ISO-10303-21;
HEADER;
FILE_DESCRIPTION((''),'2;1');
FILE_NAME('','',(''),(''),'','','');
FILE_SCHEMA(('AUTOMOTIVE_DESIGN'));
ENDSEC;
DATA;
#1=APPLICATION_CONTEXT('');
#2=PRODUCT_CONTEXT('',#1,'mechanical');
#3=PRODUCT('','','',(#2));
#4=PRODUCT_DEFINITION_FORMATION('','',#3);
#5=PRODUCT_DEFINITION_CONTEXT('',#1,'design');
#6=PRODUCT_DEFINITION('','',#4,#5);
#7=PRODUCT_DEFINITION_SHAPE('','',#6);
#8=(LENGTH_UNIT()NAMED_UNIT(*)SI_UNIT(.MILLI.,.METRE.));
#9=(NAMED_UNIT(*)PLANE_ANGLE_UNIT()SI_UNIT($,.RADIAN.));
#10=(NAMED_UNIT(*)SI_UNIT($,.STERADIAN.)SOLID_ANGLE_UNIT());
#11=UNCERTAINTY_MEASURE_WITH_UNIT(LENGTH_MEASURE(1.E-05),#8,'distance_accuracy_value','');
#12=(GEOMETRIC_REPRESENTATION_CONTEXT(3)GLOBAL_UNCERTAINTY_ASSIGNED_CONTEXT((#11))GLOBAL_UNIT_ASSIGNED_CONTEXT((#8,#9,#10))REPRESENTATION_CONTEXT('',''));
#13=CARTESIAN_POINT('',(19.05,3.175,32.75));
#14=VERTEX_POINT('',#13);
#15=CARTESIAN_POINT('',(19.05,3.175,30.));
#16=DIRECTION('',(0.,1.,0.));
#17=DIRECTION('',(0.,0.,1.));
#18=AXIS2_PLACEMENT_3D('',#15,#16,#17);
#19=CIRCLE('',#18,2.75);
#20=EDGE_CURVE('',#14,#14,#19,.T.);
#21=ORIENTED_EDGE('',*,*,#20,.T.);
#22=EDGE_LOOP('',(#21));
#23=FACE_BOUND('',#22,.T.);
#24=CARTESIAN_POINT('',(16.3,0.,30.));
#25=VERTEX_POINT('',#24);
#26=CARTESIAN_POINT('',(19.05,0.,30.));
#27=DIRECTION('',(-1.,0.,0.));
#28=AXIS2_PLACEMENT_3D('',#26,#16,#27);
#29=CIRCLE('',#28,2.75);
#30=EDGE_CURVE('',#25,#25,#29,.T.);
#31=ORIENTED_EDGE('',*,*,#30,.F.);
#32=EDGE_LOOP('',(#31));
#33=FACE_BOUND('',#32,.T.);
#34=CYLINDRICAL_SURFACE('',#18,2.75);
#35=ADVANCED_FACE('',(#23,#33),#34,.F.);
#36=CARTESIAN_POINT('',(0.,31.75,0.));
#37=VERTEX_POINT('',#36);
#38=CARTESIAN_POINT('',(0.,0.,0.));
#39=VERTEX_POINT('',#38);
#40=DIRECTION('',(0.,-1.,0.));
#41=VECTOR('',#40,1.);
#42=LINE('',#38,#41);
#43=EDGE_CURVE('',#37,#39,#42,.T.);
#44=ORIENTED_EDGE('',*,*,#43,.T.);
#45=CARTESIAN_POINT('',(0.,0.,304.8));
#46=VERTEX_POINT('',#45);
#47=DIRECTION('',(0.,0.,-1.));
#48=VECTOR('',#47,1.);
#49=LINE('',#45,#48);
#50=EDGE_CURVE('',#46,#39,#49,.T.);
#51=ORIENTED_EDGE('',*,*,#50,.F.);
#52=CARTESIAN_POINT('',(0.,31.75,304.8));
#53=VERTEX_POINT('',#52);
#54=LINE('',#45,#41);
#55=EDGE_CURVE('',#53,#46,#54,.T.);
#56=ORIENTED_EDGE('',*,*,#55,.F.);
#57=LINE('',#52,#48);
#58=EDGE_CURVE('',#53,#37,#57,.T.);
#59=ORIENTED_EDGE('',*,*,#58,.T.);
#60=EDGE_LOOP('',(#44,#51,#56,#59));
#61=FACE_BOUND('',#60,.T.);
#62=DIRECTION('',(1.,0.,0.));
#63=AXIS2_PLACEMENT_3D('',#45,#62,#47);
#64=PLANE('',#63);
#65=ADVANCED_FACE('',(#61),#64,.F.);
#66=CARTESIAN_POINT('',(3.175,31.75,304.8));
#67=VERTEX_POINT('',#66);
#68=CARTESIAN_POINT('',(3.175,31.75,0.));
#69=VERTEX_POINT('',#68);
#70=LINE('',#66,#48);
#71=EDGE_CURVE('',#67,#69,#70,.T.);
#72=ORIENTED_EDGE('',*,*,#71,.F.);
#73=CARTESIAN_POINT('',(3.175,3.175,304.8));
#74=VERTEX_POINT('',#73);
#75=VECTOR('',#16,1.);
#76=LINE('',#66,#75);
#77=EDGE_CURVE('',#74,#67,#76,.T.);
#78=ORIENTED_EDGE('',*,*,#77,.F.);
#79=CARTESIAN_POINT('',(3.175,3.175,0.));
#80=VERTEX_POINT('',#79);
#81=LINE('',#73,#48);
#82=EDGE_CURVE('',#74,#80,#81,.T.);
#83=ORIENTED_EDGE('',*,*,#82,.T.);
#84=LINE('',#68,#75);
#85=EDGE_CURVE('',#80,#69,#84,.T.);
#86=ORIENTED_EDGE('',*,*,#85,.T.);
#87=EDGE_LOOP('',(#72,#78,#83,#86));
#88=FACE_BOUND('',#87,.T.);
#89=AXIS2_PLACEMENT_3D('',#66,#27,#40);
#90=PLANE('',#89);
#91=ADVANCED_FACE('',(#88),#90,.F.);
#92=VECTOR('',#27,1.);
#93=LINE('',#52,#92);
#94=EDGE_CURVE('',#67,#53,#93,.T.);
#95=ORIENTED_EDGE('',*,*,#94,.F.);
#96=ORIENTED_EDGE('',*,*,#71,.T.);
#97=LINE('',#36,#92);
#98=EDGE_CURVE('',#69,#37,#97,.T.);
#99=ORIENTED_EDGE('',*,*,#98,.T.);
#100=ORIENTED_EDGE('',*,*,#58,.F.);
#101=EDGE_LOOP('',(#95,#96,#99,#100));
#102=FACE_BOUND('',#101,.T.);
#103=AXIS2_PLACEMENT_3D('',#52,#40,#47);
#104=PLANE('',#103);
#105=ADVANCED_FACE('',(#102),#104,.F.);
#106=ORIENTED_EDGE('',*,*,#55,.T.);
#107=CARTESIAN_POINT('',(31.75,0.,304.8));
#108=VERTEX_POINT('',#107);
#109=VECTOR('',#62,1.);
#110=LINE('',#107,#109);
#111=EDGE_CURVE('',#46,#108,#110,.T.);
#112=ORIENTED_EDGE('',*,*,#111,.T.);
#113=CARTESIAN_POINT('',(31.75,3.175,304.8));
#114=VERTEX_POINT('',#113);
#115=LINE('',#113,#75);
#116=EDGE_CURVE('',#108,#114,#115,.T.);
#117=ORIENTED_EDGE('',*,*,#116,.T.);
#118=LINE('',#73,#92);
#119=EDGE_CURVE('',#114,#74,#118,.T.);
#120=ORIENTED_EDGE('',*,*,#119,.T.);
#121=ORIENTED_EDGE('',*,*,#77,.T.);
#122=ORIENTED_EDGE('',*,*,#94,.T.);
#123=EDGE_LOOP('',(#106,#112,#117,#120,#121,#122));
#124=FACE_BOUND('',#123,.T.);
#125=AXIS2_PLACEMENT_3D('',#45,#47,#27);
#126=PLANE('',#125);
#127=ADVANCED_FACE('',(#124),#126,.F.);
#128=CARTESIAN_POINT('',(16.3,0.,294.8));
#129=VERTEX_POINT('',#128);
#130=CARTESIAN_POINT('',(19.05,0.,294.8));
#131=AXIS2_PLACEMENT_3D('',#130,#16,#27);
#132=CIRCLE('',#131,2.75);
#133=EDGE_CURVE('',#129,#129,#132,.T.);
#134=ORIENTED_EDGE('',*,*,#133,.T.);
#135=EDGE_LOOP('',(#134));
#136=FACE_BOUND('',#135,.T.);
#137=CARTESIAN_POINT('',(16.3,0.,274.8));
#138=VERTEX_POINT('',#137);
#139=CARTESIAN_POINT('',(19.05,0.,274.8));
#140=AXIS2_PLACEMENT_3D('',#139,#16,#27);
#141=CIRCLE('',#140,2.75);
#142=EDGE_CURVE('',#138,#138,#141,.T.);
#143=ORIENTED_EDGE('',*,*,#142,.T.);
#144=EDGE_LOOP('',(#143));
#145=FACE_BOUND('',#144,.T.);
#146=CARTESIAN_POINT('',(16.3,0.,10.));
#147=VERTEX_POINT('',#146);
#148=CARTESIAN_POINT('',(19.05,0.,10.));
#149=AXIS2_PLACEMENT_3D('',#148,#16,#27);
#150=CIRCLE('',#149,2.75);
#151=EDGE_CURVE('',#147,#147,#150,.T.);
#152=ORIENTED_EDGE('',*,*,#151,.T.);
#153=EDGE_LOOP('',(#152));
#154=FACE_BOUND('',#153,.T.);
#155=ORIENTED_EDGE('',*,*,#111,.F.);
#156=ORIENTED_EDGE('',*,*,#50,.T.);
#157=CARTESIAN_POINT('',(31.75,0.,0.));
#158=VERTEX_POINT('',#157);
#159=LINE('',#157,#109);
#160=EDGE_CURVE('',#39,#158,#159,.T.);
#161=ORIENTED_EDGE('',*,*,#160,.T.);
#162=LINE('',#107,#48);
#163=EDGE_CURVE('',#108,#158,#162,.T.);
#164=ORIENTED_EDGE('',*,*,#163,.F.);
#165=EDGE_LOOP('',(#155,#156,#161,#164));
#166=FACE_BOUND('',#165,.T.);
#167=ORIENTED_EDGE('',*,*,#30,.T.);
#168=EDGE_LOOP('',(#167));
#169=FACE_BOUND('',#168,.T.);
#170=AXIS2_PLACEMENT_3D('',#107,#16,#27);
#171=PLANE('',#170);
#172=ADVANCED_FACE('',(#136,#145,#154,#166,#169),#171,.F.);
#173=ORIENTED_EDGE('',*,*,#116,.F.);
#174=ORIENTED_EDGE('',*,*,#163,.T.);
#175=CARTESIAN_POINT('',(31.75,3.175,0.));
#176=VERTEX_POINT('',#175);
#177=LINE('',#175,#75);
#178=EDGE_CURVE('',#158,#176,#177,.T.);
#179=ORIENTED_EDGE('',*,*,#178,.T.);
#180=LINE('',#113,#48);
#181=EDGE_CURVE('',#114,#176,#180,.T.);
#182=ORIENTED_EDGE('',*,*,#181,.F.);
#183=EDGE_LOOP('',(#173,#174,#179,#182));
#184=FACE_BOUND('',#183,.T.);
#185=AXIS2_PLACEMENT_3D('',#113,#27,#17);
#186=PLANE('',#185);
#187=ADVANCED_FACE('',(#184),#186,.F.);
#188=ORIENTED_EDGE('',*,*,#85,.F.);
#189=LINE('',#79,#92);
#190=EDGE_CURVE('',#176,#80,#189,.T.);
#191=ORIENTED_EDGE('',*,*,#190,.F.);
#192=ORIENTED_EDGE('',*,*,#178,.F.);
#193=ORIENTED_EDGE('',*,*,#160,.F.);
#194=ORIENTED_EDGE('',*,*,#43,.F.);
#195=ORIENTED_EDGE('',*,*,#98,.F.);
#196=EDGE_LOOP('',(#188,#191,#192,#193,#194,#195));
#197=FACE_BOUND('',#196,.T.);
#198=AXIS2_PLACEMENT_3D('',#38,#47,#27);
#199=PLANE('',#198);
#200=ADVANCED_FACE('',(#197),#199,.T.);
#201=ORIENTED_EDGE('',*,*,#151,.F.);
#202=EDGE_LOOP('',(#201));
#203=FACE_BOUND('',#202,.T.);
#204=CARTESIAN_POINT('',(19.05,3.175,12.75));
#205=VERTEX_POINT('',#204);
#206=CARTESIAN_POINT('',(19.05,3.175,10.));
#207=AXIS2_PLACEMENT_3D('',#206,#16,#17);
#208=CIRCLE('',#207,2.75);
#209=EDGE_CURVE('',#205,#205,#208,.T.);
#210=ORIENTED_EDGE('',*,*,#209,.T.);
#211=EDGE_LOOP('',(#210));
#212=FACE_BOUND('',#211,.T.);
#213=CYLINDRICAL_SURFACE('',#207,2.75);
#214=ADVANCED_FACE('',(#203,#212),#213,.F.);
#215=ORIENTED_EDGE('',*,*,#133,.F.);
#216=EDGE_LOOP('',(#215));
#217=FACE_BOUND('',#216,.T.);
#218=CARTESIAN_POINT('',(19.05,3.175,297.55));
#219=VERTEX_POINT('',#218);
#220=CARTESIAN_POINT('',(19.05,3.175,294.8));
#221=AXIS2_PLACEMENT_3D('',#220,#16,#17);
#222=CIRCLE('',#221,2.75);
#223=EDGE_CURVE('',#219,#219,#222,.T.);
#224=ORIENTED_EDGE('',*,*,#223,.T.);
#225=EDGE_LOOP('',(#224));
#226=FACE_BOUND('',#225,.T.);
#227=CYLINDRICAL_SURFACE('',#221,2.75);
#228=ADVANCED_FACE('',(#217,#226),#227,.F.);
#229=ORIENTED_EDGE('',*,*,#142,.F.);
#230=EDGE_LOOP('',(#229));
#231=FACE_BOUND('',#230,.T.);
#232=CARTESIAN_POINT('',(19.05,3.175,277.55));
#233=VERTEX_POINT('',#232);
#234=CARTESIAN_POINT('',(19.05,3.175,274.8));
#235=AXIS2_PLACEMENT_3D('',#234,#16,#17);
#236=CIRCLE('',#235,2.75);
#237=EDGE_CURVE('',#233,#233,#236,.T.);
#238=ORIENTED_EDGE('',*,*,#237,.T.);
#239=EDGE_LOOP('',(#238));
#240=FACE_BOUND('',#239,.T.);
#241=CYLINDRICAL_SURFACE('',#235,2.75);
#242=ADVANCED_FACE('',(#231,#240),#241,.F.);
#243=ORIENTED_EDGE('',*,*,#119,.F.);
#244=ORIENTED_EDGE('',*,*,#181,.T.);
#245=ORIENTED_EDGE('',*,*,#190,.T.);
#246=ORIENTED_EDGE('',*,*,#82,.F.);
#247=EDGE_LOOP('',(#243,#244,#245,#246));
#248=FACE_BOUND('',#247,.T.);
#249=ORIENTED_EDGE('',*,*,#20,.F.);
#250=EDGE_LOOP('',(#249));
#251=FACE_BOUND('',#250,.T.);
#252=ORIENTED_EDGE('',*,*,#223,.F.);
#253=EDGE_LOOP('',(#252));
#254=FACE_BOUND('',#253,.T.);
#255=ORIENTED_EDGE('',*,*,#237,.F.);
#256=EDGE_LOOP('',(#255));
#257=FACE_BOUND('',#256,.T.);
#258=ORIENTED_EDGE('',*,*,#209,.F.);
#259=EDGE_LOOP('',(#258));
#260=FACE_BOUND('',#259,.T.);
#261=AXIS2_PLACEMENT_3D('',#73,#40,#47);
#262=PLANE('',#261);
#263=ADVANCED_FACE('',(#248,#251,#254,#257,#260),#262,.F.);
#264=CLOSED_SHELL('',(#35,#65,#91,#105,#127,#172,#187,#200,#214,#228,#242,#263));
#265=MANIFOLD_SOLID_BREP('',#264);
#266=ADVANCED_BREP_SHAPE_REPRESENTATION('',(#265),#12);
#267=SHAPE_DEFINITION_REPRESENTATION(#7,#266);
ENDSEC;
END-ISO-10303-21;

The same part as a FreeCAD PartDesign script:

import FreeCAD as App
import Part
import Sketcher
from FreeCAD import Vector
Q = App.Units.Quantity


def add_polygon(sketch, points):
    """Adds a closed chain of lines whose ends are joined by coincident constraints."""
    first, n = sketch.GeometryCount, len(points)
    for a, b in zip(points, points[1:] + points[:1]):
        sketch.addGeometry(Part.LineSegment(App.Vector(*a, 0), App.Vector(*b, 0)), False)
    for i in range(n):
        sketch.addConstraint(Sketcher.Constraint("Coincident", first + i, 2, first + (i + 1) % n, 1))

doc = App.newDocument("Part")
params = doc.addObject("Spreadsheet::Sheet", "Params")
for row, (alias, value) in enumerate([
    ("sketch1_width", "1.25 in"),
    ("sketch1_width2", "1.125 in"),
    ("pad1_length", "12 in"),
    ("hole_diameter", "5.5 mm"),
    ("hole_depth", "1 in"),
], start=1):
    params.set(f"A{row}", alias)
    params.set(f"B{row}", "=" + value)
    params.setAlias(f"B{row}", alias)

body = doc.addObject("PartDesign::Body", "Body")

# Sketch on XY plane
sketch1 = body.newObject("Sketcher::SketchObject", "Sketch")
sketch1.AttachmentSupport = (doc.getObject("XY_Plane"), [""])
sketch1.MapMode = "FlatFace"
add_polygon(sketch1, [(0, 31.75), (0, 0), (31.75, 0), (31.75, 3.175), (3.175, 3.175), (3.175, 31.75)])  # lines 0-5
sketch1.addConstraint(Sketcher.Constraint("Vertical", 0))
sketch1.addConstraint(Sketcher.Constraint("Horizontal", 1))
sketch1.addConstraint(Sketcher.Constraint("Vertical", 2))
sketch1.addConstraint(Sketcher.Constraint("Horizontal", 3))
sketch1.addConstraint(Sketcher.Constraint("Vertical", 4))
sketch1.addConstraint(Sketcher.Constraint("Horizontal", 5))
sketch1.addConstraint(Sketcher.Constraint("Coincident", 0, 2, -1, 1))
sketch1.addConstraint(Sketcher.Constraint("Equal", 1, 0))
sketch1.addConstraint(Sketcher.Constraint("Equal", 5, 2))
sketch1.addConstraint(Sketcher.Constraint("DistanceX", 1, 1, 1, 2, Q("1.25 in")))
sketch1.addConstraint(Sketcher.Constraint("DistanceX", 3, 2, 3, 1, Q("1.125 in")))
sketch1.setExpression("Constraints[15]", "Params.sketch1_width")
sketch1.setExpression("Constraints[16]", "Params.sketch1_width2")
pad1 = body.newObject("PartDesign::Pad", "Pad")
pad1.Profile = sketch1
pad1.setExpression("Length", "Params.pad1_length")

# Sketch on XZ plane
sketch2 = body.newObject("Sketcher::SketchObject", "Sketch001")
sketch2.AttachmentSupport = (doc.getObject("XZ_Plane"), [""])
sketch2.MapMode = "FlatFace"
sketch2.AttachmentOffset = App.Placement(Vector(0, 0, -0.125 * 25.4), App.Rotation())
sketch2.addGeometry(Part.Circle(Vector(19.05, 10, 0), Vector(0, 0, 1), 2.75), False)
sketch2.addGeometry(Part.Circle(Vector(19.05, 294.8, 0), Vector(0, 0, 1), 2.75), False)
sketch2.addGeometry(Part.Circle(Vector(19.05, 30, 0), Vector(0, 0, 1), 2.75), False)
sketch2.addGeometry(Part.Circle(Vector(19.05, 274.8, 0), Vector(0, 0, 1), 2.75), False)
sketch2.addConstraint(Sketcher.Constraint("Equal", 0, 1))
sketch2.addConstraint(Sketcher.Constraint("Equal", 1, 2))
sketch2.addConstraint(Sketcher.Constraint("Equal", 2, 3))
sketch2.addConstraint(Sketcher.Constraint("Vertical", 0, 3, 1, 3))
sketch2.addConstraint(Sketcher.Constraint("Vertical", 1, 3, 2, 3))
sketch2.addConstraint(Sketcher.Constraint("Vertical", 2, 3, 3, 3))
sketch2.addConstraint(Sketcher.Constraint("Diameter", 0, 5.5))
sketch2.addConstraint(Sketcher.Constraint("DistanceX", -1, 1, 0, 3, Q("0.75 in")))
sketch2.addConstraint(Sketcher.Constraint("DistanceY", -1, 1, 0, 3, 10.0))
sketch2.addConstraint(Sketcher.Constraint("DistanceY", -1, 1, 1, 3, 294.8))
sketch2.addConstraint(Sketcher.Constraint("DistanceY", -1, 1, 2, 3, 30.0))
sketch2.addConstraint(Sketcher.Constraint("DistanceY", -1, 1, 3, 3, 274.8))
doc.recompute()
hole = body.newObject("PartDesign::Hole", "Hole")
hole.Profile = sketch2
hole.ThreadType = "None"
hole.setExpression("Diameter", "Params.hole_diameter")
hole.DepthType = "Dimension"
hole.setExpression("Depth", "Params.hole_depth")
hole.DrillPoint = "Angled"
hole.DrillPointAngle = 118
hole.Reversed = True

doc.recompute()
